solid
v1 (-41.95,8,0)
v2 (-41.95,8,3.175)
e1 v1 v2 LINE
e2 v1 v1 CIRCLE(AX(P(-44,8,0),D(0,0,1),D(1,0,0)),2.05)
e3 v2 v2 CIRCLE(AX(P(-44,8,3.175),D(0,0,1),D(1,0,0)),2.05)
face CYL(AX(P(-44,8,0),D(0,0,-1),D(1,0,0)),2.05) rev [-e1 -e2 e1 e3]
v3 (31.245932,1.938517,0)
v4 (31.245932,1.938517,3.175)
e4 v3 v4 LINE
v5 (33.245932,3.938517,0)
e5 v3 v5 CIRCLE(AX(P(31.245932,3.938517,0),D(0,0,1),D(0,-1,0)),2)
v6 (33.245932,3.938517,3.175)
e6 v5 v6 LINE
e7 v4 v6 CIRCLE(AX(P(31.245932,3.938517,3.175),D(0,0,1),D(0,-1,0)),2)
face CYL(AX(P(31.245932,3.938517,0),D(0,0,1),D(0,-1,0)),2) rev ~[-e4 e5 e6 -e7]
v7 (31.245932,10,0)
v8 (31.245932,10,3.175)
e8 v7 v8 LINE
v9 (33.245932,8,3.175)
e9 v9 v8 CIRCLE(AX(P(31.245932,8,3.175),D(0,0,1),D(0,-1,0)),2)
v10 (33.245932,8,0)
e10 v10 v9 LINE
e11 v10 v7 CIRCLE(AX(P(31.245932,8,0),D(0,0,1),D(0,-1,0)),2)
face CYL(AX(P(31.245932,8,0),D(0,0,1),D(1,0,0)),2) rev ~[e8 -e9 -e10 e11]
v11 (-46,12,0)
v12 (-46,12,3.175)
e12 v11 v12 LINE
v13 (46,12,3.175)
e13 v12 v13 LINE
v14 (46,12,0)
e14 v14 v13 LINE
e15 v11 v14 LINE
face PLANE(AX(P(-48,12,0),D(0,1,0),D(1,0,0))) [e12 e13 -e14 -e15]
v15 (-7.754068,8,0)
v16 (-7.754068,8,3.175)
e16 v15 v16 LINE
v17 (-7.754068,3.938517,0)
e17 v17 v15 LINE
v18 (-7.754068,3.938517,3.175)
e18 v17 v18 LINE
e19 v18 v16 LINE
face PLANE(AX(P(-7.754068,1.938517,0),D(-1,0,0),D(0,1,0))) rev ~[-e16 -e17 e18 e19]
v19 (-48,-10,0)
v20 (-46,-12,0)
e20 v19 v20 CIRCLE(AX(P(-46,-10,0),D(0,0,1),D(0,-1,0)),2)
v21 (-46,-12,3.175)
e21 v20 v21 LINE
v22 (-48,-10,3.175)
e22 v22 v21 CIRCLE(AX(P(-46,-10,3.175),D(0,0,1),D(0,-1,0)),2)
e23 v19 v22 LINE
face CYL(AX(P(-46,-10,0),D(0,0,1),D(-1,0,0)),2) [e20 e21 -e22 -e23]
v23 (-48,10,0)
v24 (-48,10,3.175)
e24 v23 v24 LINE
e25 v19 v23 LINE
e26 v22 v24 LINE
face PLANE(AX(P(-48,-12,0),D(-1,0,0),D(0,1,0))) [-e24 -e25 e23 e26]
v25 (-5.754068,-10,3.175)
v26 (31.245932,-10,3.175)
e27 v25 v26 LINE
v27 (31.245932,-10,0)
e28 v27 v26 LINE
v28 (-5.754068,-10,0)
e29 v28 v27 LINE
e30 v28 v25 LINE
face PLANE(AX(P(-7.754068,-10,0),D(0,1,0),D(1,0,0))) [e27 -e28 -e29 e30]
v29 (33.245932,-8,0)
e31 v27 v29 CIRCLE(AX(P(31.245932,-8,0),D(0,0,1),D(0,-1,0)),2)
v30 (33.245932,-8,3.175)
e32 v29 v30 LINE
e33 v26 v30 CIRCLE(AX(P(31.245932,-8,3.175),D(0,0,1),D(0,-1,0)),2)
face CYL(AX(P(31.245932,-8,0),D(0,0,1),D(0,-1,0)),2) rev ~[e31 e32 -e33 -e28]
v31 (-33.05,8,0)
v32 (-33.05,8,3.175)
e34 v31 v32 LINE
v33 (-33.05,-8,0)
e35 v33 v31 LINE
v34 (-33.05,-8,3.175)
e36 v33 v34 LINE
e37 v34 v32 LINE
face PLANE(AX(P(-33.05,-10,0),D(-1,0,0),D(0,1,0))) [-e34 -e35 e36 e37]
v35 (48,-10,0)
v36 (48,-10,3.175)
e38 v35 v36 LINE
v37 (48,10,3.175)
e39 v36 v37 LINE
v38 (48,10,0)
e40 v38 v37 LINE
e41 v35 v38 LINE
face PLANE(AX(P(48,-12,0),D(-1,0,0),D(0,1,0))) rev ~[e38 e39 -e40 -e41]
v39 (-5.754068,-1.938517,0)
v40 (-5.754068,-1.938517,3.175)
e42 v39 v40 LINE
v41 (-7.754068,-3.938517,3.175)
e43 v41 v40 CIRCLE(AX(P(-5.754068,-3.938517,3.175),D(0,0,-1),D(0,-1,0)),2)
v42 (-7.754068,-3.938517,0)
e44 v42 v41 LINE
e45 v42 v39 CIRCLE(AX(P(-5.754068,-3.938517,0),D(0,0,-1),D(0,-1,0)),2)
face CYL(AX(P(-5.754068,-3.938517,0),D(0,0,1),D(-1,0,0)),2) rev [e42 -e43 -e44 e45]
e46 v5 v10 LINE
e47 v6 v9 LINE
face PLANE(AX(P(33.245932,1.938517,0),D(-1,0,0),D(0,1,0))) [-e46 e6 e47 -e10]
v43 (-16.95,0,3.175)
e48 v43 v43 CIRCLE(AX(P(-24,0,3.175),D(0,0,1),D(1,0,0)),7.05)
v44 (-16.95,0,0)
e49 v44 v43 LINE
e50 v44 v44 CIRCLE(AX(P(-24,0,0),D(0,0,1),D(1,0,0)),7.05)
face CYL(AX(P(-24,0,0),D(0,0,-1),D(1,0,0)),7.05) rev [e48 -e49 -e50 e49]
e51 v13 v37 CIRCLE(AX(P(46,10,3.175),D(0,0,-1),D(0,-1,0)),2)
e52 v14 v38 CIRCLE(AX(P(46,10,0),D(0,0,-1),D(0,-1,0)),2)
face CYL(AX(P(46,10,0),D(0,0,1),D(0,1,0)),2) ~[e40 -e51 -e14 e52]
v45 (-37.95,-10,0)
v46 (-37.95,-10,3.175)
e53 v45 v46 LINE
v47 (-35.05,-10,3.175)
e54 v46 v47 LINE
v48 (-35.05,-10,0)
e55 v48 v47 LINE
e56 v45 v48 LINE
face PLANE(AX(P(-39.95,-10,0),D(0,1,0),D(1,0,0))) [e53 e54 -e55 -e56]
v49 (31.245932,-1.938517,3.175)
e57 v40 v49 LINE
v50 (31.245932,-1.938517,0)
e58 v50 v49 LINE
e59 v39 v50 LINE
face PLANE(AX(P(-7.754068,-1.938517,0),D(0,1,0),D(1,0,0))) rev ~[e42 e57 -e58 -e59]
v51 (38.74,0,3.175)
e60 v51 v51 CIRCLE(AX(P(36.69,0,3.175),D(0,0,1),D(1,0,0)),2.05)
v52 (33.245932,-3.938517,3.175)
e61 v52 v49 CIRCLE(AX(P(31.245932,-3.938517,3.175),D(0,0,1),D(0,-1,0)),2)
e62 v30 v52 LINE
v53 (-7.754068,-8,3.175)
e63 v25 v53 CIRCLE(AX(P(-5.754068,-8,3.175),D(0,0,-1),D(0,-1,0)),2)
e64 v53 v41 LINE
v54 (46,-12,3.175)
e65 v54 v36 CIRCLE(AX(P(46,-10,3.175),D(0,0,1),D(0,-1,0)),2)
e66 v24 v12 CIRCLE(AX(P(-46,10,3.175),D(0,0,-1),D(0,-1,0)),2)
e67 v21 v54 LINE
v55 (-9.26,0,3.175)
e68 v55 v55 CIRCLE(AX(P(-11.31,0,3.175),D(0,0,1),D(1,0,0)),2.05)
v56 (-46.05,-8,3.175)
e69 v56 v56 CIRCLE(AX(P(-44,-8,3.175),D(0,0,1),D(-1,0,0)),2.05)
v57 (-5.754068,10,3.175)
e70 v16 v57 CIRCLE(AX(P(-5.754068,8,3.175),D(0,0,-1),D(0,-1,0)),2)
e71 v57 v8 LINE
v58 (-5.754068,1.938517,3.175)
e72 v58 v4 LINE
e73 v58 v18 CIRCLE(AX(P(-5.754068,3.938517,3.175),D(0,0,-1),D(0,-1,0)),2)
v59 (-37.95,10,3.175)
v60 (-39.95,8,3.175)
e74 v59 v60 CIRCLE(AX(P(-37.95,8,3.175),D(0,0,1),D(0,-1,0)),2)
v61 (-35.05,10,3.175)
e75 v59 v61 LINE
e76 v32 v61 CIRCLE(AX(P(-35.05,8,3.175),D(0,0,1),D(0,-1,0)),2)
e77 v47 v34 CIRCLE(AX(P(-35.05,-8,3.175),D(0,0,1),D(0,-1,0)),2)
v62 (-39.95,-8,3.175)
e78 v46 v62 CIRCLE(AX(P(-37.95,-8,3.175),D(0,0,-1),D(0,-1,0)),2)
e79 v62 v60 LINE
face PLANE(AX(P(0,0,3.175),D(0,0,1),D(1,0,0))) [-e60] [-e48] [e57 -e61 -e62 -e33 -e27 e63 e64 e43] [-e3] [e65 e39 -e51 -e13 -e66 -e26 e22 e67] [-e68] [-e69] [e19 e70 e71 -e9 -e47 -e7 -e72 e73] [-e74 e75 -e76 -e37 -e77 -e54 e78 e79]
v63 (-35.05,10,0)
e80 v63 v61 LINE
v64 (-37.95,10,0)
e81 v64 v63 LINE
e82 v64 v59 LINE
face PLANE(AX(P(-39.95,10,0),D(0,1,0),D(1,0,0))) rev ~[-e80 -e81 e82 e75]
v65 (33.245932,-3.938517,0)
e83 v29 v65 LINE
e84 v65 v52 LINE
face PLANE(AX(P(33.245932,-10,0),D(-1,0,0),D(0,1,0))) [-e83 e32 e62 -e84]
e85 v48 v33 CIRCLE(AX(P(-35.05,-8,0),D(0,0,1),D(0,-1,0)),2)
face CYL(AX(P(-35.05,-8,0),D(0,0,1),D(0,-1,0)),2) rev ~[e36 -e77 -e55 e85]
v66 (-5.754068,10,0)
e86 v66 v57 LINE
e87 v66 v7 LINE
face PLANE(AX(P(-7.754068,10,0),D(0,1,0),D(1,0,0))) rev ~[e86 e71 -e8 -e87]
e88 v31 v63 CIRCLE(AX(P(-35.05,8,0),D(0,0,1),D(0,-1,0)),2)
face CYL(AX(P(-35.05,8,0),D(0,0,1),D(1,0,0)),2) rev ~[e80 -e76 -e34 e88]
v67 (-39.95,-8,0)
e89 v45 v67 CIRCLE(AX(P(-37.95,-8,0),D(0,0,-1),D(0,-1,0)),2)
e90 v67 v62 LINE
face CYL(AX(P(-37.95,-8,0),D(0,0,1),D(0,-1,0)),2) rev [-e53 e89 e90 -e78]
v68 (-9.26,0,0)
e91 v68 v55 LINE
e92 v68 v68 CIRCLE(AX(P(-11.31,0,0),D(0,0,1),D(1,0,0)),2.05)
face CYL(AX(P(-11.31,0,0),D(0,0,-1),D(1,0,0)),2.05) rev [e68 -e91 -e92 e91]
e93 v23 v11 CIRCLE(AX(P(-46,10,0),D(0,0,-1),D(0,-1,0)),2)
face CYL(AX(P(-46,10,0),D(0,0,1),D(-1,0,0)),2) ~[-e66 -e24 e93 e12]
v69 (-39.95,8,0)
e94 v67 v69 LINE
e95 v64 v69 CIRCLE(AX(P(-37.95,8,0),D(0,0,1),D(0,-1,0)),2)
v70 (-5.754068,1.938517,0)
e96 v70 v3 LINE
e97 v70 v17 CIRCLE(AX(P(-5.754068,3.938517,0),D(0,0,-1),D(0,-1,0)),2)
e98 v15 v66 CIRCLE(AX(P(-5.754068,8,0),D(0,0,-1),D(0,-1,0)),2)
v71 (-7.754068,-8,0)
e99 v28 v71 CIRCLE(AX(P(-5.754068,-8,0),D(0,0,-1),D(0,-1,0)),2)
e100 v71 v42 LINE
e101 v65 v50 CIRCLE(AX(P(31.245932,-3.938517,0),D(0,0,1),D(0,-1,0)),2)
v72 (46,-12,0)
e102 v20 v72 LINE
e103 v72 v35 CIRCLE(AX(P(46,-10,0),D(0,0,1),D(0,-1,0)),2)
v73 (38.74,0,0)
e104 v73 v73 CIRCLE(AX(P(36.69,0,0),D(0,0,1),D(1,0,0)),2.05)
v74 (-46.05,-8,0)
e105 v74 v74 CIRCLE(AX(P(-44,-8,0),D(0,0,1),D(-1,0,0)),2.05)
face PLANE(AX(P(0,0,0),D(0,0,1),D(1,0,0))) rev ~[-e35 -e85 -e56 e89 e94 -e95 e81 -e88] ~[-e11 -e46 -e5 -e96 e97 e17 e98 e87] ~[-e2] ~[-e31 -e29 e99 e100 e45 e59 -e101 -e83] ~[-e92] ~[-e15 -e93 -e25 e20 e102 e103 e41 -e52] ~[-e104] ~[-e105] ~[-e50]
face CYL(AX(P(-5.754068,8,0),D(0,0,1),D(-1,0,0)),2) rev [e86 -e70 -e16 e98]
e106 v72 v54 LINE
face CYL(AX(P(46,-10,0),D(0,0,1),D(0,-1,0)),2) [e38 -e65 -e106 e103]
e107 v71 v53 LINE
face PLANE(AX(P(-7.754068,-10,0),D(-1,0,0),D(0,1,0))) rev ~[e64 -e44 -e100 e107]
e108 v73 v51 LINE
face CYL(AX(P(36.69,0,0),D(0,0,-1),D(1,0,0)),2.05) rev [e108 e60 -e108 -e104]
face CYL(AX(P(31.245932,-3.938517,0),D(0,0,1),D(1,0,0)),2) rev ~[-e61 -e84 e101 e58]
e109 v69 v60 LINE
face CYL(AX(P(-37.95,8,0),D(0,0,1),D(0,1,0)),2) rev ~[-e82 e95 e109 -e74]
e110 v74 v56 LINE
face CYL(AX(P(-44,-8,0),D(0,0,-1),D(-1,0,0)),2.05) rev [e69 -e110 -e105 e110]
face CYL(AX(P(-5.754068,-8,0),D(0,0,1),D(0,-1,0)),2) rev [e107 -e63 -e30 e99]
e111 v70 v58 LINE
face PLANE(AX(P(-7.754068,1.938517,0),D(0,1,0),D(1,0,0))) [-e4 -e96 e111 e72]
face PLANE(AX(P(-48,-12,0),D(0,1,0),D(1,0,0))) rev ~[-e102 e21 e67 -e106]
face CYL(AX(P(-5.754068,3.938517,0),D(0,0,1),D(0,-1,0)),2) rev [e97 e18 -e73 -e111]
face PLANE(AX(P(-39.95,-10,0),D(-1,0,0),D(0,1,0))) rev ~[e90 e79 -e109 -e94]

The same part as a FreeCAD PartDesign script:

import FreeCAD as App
import Part
import Sketcher


def edges_at(feature, points):
    """Names of the edges that pass closest to the given points."""
    edges = feature.Shape.Edges
    near = lambda p: min(range(len(edges)), key=lambda i: edges[i].distToShape(Part.Vertex(*p))[0])
    return sorted({f"Edge{near(p) + 1}" for p in points})

doc = App.newDocument("Part")
params = doc.addObject("Spreadsheet::Sheet", "Params")
for row, (alias, value) in enumerate([
    ("sketch1_diameter", "4.1 mm"),
    ("sketch1_diameter2", "14.1 mm"),
    ("sketch1_width", "96 mm"),
    ("sketch1_width2", "41 mm"),
    ("sketch1_height", "24 mm"),
    ("pad1_length", "3.175 mm"),
    ("fillet_radius", "2 mm"),
], start=1):
    params.set(f"A{row}", alias)
    params.set(f"B{row}", "=" + value)
    params.setAlias(f"B{row}", alias)

body = doc.addObject("PartDesign::Body", "Body")

# Sketch on XY plane
sketch1 = body.newObject("Sketcher::SketchObject", "Sketch")
sketch1.AttachmentSupport = (doc.getObject("XY_Plane"), [""])
sketch1.MapMode = "FlatFace"
sketch1.addGeometry([
    Part.LineSegment(App.Vector(-48, 12, 0), App.Vector(-48, -12, 0)),  # 0
    Part.LineSegment(App.Vector(-48, -12, 0), App.Vector(48, -12, 0)),  # 1
    Part.LineSegment(App.Vector(48, -12, 0), App.Vector(48, 12, 0)),  # 2
    Part.LineSegment(App.Vector(48, 12, 0), App.Vector(-48, 12, 0)),  # 3
    Part.Circle(App.Vector(-44, -8, 0), App.Vector(0, 0, 1), 2.05),  # 4
    Part.LineSegment(App.Vector(33.245932, -10, 0), App.Vector(-7.754068, -10, 0)),  # 5
    Part.LineSegment(App.Vector(-7.754068, -10, 0), App.Vector(-7.754068, -1.938517, 0)),  # 6
    Part.LineSegment(App.Vector(-7.754068, -1.938517, 0), App.Vector(33.245932, -1.938517, 0)),  # 7
    Part.LineSegment(App.Vector(33.245932, -1.938517, 0), App.Vector(33.245932, -10, 0)),  # 8
    Part.LineSegment(App.Vector(-33.05, -10, 0), App.Vector(-39.95, -10, 0)),  # 9
    Part.LineSegment(App.Vector(-39.95, -10, 0), App.Vector(-39.95, 10, 0)),  # 10
    Part.LineSegment(App.Vector(-39.95, 10, 0), App.Vector(-33.05, 10, 0)),  # 11
    Part.LineSegment(App.Vector(-33.05, 10, 0), App.Vector(-33.05, -10, 0)),  # 12
    Part.Circle(App.Vector(-24, 0, 0), App.Vector(0, 0, 1), 7.05),  # 13
    Part.Circle(App.Vector(-11.31, 0, 0), App.Vector(0, 0, 1), 2.05),  # 14
    Part.Circle(App.Vector(-44, 8, 0), App.Vector(0, 0, 1), 2.05),  # 15
    Part.Circle(App.Vector(36.69, 0, 0), App.Vector(0, 0, 1), 2.05),  # 16
    Part.LineSegment(App.Vector(33.245932, 1.938517, 0), App.Vector(-7.754068, 1.938517, 0)),  # 17
    Part.LineSegment(App.Vector(-7.754068, 1.938517, 0), App.Vector(-7.754068, 10, 0)),  # 18
    Part.LineSegment(App.Vector(-7.754068, 10, 0), App.Vector(33.245932, 10, 0)),  # 19
    Part.LineSegment(App.Vector(33.245932, 10, 0), App.Vector(33.245932, 1.938517, 0)),  # 20
], False)
sketch1.addConstraint([
    Sketcher.Constraint("Coincident", 0, 2, 1, 1),
    Sketcher.Constraint("Coincident", 1, 2, 2, 1),
    Sketcher.Constraint("Coincident", 2, 2, 3, 1),
    Sketcher.Constraint("Coincident", 3, 2, 0, 1),
    Sketcher.Constraint("Coincident", 5, 2, 6, 1),
    Sketcher.Constraint("Coincident", 6, 2, 7, 1),
    Sketcher.Constraint("Coincident", 7, 2, 8, 1),
    Sketcher.Constraint("Coincident", 8, 2, 5, 1),
    Sketcher.Constraint("Coincident", 9, 2, 10, 1),
    Sketcher.Constraint("Coincident", 10, 2, 11, 1),
    Sketcher.Constraint("Coincident", 11, 2, 12, 1),
    Sketcher.Constraint("Coincident", 12, 2, 9, 1),
    Sketcher.Constraint("Coincident", 17, 2, 18, 1),
    Sketcher.Constraint("Coincident", 18, 2, 19, 1),
    Sketcher.Constraint("Coincident", 19, 2, 20, 1),
    Sketcher.Constraint("Coincident", 20, 2, 17, 1),
    Sketcher.Constraint("Vertical", 0),
    Sketcher.Constraint("Horizontal", 1),
    Sketcher.Constraint("Vertical", 2),
    Sketcher.Constraint("Horizontal", 3),
    Sketcher.Constraint("Horizontal", 5),
    Sketcher.Constraint("Vertical", 6),
    Sketcher.Constraint("Horizontal", 7),
    Sketcher.Constraint("Vertical", 8),
    Sketcher.Constraint("Horizontal", 9),
    Sketcher.Constraint("Vertical", 10),
    Sketcher.Constraint("Horizontal", 11),
    Sketcher.Constraint("Vertical", 12),
    Sketcher.Constraint("Horizontal", 17),
    Sketcher.Constraint("Vertical", 18),
    Sketcher.Constraint("Horizontal", 19),
    Sketcher.Constraint("Vertical", 20),
    Sketcher.Constraint("Equal", 4, 14),
    Sketcher.Constraint("Equal", 14, 15),
    Sketcher.Constraint("Equal", 15, 16),
    Sketcher.Constraint("Symmetric", 0, 2, 2, 2, -1, 1),
    Sketcher.Constraint("Symmetric", 4, 3, 15, 3, -1),
    Sketcher.Constraint("Symmetric", 6, 2, 17, 2, -1),
    Sketcher.Constraint("Symmetric", 8, 2, 19, 2, -1),
    Sketcher.Constraint("PointOnObject", 13, 3, -1),
    Sketcher.Constraint("PointOnObject", 14, 3, -1),
    Sketcher.Constraint("PointOnObject", 16, 3, -1),
    Sketcher.Constraint("Horizontal", 8, 2, 9, 2),
    Sketcher.Constraint("Horizontal", 11, 2, 18, 2),
    Sketcher.Constraint("Diameter", 4, 4.1),
    Sketcher.Constraint("Diameter", 13, 14.1),
    Sketcher.Constraint("DistanceX", 1, 1, 1, 2, 96.0),
    Sketcher.Constraint("DistanceX", 5, 2, 5, 1, 41.0),
    Sketcher.Constraint("DistanceY", 0, 2, 0, 1, 24.0),
    Sketcher.Constraint("DistanceY", 10, 1, 10, 2, 20.0),
    Sketcher.Constraint("DistanceX", 9, 2, 9, 1, 6.9),
    Sketcher.Constraint("DistanceX", 4, 3, -1, 1, 44.0),
    Sketcher.Constraint("DistanceY", 4, 3, -1, 1, 8.0),
    Sketcher.Constraint("DistanceX", 13, 3, -1, 1, 24.0),
    Sketcher.Constraint("DistanceX", 14, 3, 16, 3, 48.0),
    Sketcher.Constraint("DistanceX", 14, 3, -1, 1, 11.31),
    Sketcher.Constraint("DistanceX", 9, 2, -1, 1, 39.95),
    Sketcher.Constraint("DistanceY", 6, 1, 6, 2, 8.061483),
    Sketcher.Constraint("DistanceX", 5, 2, -1, 1, 7.754068),
])
sketch1.setExpression("Constraints[44]", "Params.sketch1_diameter")
sketch1.setExpression("Constraints[45]", "Params.sketch1_diameter2")
sketch1.setExpression("Constraints[46]", "Params.sketch1_width")
sketch1.setExpression("Constraints[47]", "Params.sketch1_width2")
sketch1.setExpression("Constraints[48]", "Params.sketch1_height")
pad1 = body.newObject("PartDesign::Pad", "Pad")
pad1.Profile = sketch1
pad1.setExpression("Length", "Params.pad1_length")
doc.recompute()

fillet = body.newObject("PartDesign::Fillet", "Fillet")
fillet.Base = (pad1, edges_at(pad1, [
    (-7.754, 10, 1.587),
    (-7.754, 1.939, 1.587),
    (33.246, 1.939, 1.587),
    (33.246, 10, 1.587),
    (-7.754, -1.939, 1.587),
    (-7.754, -10, 1.587),
    (33.246, -10, 1.587),
    (33.246, -1.939, 1.587),
    (-39.95, 10, 1.587),
    (-39.95, -10, 1.587),
    (-33.05, -10, 1.587),
    (-33.05, 10, 1.587),
    (-48, 12, 1.587),
    (48, 12, 1.587),
    (48, -12, 1.587),
    (-48, -12, 1.587),
]))
fillet.setExpression("Radius", "Params.fillet_radius")

doc.recompute()
